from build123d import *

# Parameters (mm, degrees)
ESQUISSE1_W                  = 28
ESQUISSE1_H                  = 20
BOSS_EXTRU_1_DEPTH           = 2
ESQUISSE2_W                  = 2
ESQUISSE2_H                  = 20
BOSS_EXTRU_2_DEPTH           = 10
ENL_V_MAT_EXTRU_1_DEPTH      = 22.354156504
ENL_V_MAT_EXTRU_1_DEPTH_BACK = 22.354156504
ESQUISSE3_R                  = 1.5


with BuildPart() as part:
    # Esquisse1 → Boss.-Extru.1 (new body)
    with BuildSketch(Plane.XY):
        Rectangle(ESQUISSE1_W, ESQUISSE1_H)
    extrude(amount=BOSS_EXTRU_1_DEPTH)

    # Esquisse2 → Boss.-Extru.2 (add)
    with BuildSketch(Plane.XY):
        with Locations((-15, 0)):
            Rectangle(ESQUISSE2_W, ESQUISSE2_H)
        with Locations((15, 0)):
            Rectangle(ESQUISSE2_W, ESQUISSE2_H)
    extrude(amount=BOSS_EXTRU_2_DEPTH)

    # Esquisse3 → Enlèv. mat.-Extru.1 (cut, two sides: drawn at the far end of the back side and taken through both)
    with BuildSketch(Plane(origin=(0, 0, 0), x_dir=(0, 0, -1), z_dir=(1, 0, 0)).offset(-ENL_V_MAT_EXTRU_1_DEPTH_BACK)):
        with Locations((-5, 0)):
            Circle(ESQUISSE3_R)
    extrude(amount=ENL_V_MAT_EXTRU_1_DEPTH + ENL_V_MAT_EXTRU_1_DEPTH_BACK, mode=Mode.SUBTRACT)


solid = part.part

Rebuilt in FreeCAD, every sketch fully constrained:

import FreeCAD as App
import Part
import Sketcher


def add_polygon(sketch, points):
    """Adds a closed chain of lines whose ends are joined by coincident constraints."""
    first, n = sketch.GeometryCount, len(points)
    for a, b in zip(points, points[1:] + points[:1]):
        sketch.addGeometry(Part.LineSegment(App.Vector(*a, 0), App.Vector(*b, 0)), False)
    for i in range(n):
        sketch.addConstraint(Sketcher.Constraint("Coincident", first + i, 2, first + (i + 1) % n, 1))

doc = App.newDocument("Part")
body = doc.addObject("PartDesign::Body", "Body")

# Sketch on XY plane
sketch1 = body.newObject("Sketcher::SketchObject", "Sketch")
sketch1.AttachmentSupport = (doc.getObject("XY_Plane"), [""])
sketch1.MapMode = "FlatFace"
add_polygon(sketch1, [(-14, 10), (-14, -10), (14, -10), (14, 10)])  # lines 0-3
sketch1.addConstraint(Sketcher.Constraint("Vertical", 0))
sketch1.addConstraint(Sketcher.Constraint("Horizontal", 1))
sketch1.addConstraint(Sketcher.Constraint("Vertical", 2))
sketch1.addConstraint(Sketcher.Constraint("Horizontal", 3))
sketch1.addConstraint(Sketcher.Constraint("Symmetric", 0, 2, 2, 2, -1, 1))
sketch1.addConstraint(Sketcher.Constraint("DistanceX", 1, 1, 1, 2, 28.0))
sketch1.addConstraint(Sketcher.Constraint("DistanceY", 0, 2, 0, 1, 20.0))
pad1 = body.newObject("PartDesign::Pad", "Pad")
pad1.Profile = sketch1
pad1.Length = 2

# Sketch on XY plane
sketch2 = body.newObject("Sketcher::SketchObject", "Sketch001")
sketch2.AttachmentSupport = (doc.getObject("XY_Plane"), [""])
sketch2.MapMode = "FlatFace"
add_polygon(sketch2, [(-16, 10), (-16, -10), (-14, -10), (-14, 10)])  # lines 0-3
add_polygon(sketch2, [(14, 10), (14, -10), (16, -10), (16, 10)])  # lines 4-7
sketch2.addConstraint(Sketcher.Constraint("Vertical", 0))
sketch2.addConstraint(Sketcher.Constraint("Horizontal", 1))
sketch2.addConstraint(Sketcher.Constraint("Vertical", 2))
sketch2.addConstraint(Sketcher.Constraint("Horizontal", 3))
sketch2.addConstraint(Sketcher.Constraint("Vertical", 4))
sketch2.addConstraint(Sketcher.Constraint("Horizontal", 5))
sketch2.addConstraint(Sketcher.Constraint("Vertical", 6))
sketch2.addConstraint(Sketcher.Constraint("Horizontal", 7))
sketch2.addConstraint(Sketcher.Constraint("Symmetric", 2, 2, 4, 2, -1, 1))
sketch2.addConstraint(Sketcher.Constraint("Symmetric", 0, 2, 6, 2, -1, 1))
sketch2.addConstraint(Sketcher.Constraint("Horizontal", 1, 2, 4, 2))
sketch2.addConstraint(Sketcher.Constraint("DistanceX", 1, 1, 1, 2, 2.0))
sketch2.addConstraint(Sketcher.Constraint("DistanceY", 0, 2, 0, 1, 20.0))
sketch2.addConstraint(Sketcher.Constraint("DistanceX", 0, 2, -1, 1, 16.0))
pad2 = body.newObject("PartDesign::Pad", "Pad001")
pad2.Profile = sketch2
pad2.Length = 10

# Sketch on YZ plane
sketch3 = body.newObject("Sketcher::SketchObject", "Sketch002")
sketch3.AttachmentSupport = (doc.getObject("YZ_Plane"), [""])
sketch3.MapMode = "FlatFace"
sketch3.addGeometry(Part.Circle(App.Vector(0, 5, 0), App.Vector(0, 0, 1), 1.5), False)
sketch3.addConstraint(Sketcher.Constraint("PointOnObject", 0, 3, -2))
sketch3.addConstraint(Sketcher.Constraint("Diameter", 0, 3.0))
sketch3.addConstraint(Sketcher.Constraint("DistanceY", -1, 1, 0, 3, 5.0))
pocket1 = body.newObject("PartDesign::Pocket", "Pocket")
pocket1.Profile = sketch3
pocket1.Type = "ThroughAll"
pocket1.Midplane = True

doc.recompute()
